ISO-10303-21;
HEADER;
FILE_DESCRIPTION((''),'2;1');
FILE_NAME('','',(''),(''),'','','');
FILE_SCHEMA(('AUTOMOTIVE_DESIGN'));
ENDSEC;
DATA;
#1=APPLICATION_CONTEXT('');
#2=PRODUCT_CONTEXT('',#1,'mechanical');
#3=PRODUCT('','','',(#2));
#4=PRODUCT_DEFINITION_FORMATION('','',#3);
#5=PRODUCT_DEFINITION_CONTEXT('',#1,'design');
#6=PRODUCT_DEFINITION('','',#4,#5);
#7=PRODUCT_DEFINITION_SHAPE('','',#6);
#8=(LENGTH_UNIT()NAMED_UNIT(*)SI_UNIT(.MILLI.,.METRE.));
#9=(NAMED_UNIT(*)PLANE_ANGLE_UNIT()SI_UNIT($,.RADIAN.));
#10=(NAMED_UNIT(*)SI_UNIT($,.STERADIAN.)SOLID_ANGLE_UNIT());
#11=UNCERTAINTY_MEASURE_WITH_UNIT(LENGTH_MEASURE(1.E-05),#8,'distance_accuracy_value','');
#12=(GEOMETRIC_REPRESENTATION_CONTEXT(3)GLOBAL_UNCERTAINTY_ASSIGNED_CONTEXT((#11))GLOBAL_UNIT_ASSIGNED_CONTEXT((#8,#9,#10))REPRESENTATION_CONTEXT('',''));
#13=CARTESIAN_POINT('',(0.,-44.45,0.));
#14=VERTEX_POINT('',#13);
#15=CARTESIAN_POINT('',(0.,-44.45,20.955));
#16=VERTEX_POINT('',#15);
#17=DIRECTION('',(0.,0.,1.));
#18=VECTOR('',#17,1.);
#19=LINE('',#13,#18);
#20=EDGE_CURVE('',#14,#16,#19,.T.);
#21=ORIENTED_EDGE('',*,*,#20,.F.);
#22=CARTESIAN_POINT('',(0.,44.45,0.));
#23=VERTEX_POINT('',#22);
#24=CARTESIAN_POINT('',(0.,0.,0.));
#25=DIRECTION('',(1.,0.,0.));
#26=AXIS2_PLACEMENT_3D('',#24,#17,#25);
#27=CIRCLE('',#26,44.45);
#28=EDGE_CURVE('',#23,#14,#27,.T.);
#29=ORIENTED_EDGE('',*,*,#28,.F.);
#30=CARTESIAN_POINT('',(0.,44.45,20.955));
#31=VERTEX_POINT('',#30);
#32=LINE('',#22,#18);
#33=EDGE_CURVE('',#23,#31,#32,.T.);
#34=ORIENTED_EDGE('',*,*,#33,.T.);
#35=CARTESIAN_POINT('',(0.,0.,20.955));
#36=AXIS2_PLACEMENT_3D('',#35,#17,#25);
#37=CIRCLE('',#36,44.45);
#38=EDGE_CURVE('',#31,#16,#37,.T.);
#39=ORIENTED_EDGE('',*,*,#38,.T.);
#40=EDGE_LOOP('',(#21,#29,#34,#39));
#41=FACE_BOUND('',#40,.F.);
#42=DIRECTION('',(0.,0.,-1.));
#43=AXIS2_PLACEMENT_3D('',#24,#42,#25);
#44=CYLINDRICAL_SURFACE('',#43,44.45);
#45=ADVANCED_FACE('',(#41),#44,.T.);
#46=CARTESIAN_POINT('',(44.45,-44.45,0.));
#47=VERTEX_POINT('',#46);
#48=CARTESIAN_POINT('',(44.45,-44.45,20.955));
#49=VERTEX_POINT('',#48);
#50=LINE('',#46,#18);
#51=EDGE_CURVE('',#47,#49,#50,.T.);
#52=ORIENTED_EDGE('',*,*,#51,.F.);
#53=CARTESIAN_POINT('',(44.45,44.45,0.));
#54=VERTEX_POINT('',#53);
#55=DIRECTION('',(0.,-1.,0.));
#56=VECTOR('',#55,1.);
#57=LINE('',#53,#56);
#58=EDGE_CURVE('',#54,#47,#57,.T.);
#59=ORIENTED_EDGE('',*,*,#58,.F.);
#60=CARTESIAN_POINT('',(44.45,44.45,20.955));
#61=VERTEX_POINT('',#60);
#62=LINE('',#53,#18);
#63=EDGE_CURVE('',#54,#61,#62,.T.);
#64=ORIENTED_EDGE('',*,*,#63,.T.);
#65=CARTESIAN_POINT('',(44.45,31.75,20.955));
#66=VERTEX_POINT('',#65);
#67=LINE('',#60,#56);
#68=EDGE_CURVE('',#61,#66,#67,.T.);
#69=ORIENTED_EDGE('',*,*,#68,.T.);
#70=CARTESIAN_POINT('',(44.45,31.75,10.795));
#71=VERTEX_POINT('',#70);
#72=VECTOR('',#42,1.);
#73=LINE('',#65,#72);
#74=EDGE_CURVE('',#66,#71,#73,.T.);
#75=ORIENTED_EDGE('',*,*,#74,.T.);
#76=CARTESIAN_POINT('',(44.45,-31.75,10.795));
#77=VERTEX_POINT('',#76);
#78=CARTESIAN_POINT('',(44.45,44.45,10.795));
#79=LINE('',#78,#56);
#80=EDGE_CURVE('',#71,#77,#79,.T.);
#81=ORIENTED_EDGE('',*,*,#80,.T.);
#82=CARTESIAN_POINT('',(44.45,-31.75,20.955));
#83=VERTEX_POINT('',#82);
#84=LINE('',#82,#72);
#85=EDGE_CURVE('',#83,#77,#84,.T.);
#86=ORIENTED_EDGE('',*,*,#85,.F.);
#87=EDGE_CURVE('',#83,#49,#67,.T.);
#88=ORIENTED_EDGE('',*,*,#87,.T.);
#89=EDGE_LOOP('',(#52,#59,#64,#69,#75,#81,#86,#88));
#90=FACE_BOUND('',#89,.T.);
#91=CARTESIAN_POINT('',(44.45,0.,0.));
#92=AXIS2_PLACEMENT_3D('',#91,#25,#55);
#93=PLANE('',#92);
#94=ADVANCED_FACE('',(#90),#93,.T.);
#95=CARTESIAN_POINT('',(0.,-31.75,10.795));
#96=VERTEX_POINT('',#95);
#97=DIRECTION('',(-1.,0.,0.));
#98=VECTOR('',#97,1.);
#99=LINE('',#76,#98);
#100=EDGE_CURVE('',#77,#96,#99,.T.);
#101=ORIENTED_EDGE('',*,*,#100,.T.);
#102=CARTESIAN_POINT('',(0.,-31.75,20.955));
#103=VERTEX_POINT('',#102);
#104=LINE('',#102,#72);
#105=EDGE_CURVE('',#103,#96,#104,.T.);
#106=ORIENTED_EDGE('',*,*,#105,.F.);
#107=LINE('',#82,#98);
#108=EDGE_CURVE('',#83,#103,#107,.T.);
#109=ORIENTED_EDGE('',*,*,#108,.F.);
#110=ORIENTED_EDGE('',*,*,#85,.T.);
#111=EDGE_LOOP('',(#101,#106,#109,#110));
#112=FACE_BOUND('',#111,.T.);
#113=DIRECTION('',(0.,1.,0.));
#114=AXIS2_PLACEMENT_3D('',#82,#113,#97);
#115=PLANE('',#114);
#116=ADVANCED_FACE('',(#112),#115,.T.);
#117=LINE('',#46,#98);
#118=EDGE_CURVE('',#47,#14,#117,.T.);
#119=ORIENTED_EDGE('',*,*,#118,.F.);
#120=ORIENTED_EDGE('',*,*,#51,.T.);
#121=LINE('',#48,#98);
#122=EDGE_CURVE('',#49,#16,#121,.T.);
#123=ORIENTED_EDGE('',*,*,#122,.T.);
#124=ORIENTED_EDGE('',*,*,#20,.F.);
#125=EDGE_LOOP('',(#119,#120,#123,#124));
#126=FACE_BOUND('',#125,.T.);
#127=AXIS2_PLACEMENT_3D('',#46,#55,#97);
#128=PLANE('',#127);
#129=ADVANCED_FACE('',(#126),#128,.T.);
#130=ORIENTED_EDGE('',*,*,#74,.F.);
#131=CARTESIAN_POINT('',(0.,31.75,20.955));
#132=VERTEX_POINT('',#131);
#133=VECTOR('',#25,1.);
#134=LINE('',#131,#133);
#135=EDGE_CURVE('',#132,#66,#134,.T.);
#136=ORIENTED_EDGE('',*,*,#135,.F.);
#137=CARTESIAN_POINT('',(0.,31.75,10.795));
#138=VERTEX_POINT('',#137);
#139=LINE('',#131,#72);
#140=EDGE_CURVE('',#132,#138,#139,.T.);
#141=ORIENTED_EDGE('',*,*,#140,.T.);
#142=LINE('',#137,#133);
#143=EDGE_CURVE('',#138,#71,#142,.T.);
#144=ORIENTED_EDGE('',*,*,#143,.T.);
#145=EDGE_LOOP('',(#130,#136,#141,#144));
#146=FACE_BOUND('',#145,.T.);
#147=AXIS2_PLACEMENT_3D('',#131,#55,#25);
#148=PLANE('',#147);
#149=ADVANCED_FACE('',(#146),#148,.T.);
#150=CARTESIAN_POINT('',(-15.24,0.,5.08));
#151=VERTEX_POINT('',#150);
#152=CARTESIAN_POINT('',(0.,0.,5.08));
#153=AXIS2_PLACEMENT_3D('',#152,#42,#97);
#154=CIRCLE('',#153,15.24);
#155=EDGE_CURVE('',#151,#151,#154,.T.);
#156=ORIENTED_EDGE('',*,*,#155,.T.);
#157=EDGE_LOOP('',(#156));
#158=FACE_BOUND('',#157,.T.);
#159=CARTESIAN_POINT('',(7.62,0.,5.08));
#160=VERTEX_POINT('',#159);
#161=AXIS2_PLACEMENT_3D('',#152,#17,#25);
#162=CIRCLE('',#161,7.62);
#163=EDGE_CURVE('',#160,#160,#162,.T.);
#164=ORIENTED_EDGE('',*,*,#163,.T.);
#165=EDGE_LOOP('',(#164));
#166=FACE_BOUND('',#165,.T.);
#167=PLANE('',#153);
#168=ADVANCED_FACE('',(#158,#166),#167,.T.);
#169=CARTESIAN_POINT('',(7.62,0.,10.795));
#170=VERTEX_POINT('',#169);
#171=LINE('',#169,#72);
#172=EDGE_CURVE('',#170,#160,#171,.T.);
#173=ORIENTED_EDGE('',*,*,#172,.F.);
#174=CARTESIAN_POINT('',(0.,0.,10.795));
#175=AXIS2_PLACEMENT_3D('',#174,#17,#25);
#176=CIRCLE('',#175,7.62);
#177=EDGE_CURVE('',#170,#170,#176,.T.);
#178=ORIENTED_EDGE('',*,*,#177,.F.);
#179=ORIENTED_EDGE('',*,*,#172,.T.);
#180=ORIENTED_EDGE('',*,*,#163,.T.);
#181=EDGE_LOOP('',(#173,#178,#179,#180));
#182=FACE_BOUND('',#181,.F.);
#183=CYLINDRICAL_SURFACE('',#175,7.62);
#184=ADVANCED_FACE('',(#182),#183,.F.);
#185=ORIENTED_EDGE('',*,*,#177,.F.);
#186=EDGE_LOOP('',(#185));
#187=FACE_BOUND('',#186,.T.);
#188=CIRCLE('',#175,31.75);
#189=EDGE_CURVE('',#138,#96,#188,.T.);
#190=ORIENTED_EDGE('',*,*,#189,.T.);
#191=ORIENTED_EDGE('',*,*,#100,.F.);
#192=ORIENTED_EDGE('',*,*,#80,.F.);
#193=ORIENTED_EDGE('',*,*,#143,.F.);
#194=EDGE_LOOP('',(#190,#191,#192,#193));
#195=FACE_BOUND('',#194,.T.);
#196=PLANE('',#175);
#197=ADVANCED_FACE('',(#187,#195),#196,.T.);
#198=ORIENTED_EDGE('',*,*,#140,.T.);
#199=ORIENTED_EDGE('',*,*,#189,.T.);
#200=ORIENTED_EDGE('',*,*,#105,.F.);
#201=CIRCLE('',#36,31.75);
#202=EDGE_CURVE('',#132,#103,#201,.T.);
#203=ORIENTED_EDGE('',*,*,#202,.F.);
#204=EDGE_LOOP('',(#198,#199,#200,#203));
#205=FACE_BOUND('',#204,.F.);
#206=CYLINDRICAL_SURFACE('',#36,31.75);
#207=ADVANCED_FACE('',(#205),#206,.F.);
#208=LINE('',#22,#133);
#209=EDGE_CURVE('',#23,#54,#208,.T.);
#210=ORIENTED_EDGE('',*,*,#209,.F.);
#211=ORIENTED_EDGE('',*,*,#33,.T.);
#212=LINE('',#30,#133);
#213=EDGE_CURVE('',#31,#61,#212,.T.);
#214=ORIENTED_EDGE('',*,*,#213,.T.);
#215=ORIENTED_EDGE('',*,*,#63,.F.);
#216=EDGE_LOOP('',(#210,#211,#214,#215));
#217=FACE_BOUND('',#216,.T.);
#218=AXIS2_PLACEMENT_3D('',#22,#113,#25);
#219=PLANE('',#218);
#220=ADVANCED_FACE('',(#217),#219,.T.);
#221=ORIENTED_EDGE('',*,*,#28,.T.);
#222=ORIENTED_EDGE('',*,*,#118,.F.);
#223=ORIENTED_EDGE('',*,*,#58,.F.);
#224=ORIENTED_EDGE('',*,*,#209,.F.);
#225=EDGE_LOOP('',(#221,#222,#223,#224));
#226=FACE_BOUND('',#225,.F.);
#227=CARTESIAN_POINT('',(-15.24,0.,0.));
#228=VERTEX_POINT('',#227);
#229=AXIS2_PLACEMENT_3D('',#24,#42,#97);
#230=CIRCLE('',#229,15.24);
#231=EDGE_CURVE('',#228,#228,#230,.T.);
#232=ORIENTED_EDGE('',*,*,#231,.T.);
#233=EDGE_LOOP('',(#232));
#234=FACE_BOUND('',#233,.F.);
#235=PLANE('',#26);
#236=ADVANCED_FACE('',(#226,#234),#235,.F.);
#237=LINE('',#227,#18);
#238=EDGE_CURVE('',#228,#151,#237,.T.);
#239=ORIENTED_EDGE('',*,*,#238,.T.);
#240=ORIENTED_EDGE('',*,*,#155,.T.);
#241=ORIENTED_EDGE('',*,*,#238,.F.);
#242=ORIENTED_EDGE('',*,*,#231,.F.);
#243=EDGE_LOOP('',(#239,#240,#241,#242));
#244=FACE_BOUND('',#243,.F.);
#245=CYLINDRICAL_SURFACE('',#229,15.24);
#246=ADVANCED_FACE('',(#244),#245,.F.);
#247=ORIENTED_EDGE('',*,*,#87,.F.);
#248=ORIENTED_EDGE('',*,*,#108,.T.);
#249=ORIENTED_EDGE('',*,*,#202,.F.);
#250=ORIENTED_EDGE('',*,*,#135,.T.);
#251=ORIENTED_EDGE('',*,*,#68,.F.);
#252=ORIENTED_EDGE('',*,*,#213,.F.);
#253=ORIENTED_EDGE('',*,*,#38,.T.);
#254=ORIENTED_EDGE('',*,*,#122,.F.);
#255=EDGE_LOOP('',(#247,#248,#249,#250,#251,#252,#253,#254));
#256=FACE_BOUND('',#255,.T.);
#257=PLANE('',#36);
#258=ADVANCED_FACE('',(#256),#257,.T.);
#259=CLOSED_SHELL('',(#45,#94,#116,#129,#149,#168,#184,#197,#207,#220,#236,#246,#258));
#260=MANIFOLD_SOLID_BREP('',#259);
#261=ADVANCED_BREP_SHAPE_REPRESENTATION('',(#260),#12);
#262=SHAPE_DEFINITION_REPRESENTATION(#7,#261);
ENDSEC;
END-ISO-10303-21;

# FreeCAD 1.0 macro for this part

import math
import FreeCAD as App
import Part
import Sketcher
Q = App.Units.Quantity

doc = App.newDocument("Part")
body = doc.addObject("PartDesign::Body", "Body")

# Sketch on XY plane
sketch1 = doc.addObject("Sketcher::SketchObject", "Sketch")
body.addObject(sketch1)
sketch1.AttachmentSupport = (doc.XY_Plane, [""])
sketch1.MapMode = "FlatFace"
sketch1.addGeometry(Part.LineSegment(App.Vector(44, -44, 0), App.Vector(44, 44, 0)), False)
sketch1.addGeometry(Part.LineSegment(App.Vector(44, 44, 0), App.Vector(0, 44, 0)), False)
sketch1.addGeometry(Part.ArcOfCircle(Part.Circle(App.Vector(0, 0, 0), App.Vector(0, 0, 1), 44), math.radians(90), math.radians(270)), False)
sketch1.addGeometry(Part.LineSegment(App.Vector(0, -44, 0), App.Vector(44, -44, 0)), False)
sketch1.addConstraint(Sketcher.Constraint("Coincident", 0, 2, 1, 1))
sketch1.addConstraint(Sketcher.Constraint("Tangent", 1, 2, 2, 1))
sketch1.addConstraint(Sketcher.Constraint("Tangent", 2, 2, 3, 1))
sketch1.addConstraint(Sketcher.Constraint("Coincident", 3, 2, 0, 1))
sketch1.addConstraint(Sketcher.Constraint("Vertical", 0))
sketch1.addConstraint(Sketcher.Constraint("Horizontal", 1))
sketch1.addConstraint(Sketcher.Constraint("Horizontal", 3))
sketch1.addConstraint(Sketcher.Constraint("Coincident", 2, 3, -1, 1))
sketch1.addConstraint(Sketcher.Constraint("Radius", 2, Q("1.75 in")))
sketch1.addConstraint(Sketcher.Constraint("DistanceX", 1, 2, 1, 1, Q("1.75 in")))
pad1 = doc.addObject("PartDesign::Pad", "Pad")
body.addObject(pad1)
pad1.Profile = sketch1
pad1.Length = Q("0.825 in")

# Sketch on XY plane
sketch2 = doc.addObject("Sketcher::SketchObject", "Sketch001")
body.addObject(sketch2)
sketch2.AttachmentSupport = (doc.XY_Plane, [""])
sketch2.MapMode = "FlatFace"
sketch2.AttachmentOffset = App.Placement(App.Vector(0, 0, 0.825 * 25.4), App.Rotation())
sketch2.addGeometry(Part.LineSegment(App.Vector(0, -32, 0), App.Vector(44, -32, 0)), False)
sketch2.addGeometry(Part.LineSegment(App.Vector(44, -32, 0), App.Vector(44, 32, 0)), False)
sketch2.addGeometry(Part.LineSegment(App.Vector(44, 32, 0), App.Vector(0, 32, 0)), False)
sketch2.addGeometry(Part.ArcOfCircle(Part.Circle(App.Vector(0, 0, 0), App.Vector(0, 0, 1), 32), math.radians(90), math.radians(270)), False)
sketch2.addConstraint(Sketcher.Constraint("Coincident", 0, 2, 1, 1))
sketch2.addConstraint(Sketcher.Constraint("Coincident", 1, 2, 2, 1))
sketch2.addConstraint(Sketcher.Constraint("Tangent", 2, 2, 3, 1))
sketch2.addConstraint(Sketcher.Constraint("Tangent", 3, 2, 0, 1))
sketch2.addConstraint(Sketcher.Constraint("Horizontal", 0))
sketch2.addConstraint(Sketcher.Constraint("Vertical", 1))
sketch2.addConstraint(Sketcher.Constraint("Horizontal", 2))
sketch2.addConstraint(Sketcher.Constraint("Coincident", 3, 3, -1, 1))
sketch2.addConstraint(Sketcher.Constraint("Radius", 3, Q("1.25 in")))
sketch2.addConstraint(Sketcher.Constraint("DistanceX", 0, 1, 0, 2, Q("1.75 in")))
pocket1 = doc.addObject("PartDesign::Pocket", "Pocket")
body.addObject(pocket1)
pocket1.Profile = sketch2
pocket1.Length = Q("0.4 in")

# Sketch on XY plane
sketch3 = doc.addObject("Sketcher::SketchObject", "Sketch002")
body.addObject(sketch3)
sketch3.AttachmentSupport = (doc.XY_Plane, [""])
sketch3.MapMode = "FlatFace"
sketch3.AttachmentOffset = App.Placement(App.Vector(0, 0, 0.425 * 25.4), App.Rotation())
sketch3.addGeometry(Part.Circle(App.Vector(0, 0, 0), App.Vector(0, 0, 1), 8), False)
sketch3.addConstraint(Sketcher.Constraint("Coincident", 0, 3, -1, 1))
sketch3.addConstraint(Sketcher.Constraint("Diameter", 0, Q("0.6 in")))
pocket2 = doc.addObject("PartDesign::Pocket", "Pocket001")
body.addObject(pocket2)
pocket2.Profile = sketch3
pocket2.Type = "ThroughAll"

# Sketch on XY plane
sketch4 = doc.addObject("Sketcher::SketchObject", "Sketch003")
body.addObject(sketch4)
sketch4.AttachmentSupport = (doc.XY_Plane, [""])
sketch4.MapMode = "FlatFace"
sketch4.addGeometry(Part.Circle(App.Vector(0, 0, 0), App.Vector(0, 0, 1), 15), False)
sketch4.addConstraint(Sketcher.Constraint("Coincident", 0, 3, -1, 1))
sketch4.addConstraint(Sketcher.Constraint("Diameter", 0, Q("1.2 in")))
pocket3 = doc.addObject("PartDesign::Pocket", "Pocket002")
body.addObject(pocket3)
pocket3.Profile = sketch4
pocket3.Length = Q("0.2 in")
pocket3.Reversed = True

doc.recompute()
